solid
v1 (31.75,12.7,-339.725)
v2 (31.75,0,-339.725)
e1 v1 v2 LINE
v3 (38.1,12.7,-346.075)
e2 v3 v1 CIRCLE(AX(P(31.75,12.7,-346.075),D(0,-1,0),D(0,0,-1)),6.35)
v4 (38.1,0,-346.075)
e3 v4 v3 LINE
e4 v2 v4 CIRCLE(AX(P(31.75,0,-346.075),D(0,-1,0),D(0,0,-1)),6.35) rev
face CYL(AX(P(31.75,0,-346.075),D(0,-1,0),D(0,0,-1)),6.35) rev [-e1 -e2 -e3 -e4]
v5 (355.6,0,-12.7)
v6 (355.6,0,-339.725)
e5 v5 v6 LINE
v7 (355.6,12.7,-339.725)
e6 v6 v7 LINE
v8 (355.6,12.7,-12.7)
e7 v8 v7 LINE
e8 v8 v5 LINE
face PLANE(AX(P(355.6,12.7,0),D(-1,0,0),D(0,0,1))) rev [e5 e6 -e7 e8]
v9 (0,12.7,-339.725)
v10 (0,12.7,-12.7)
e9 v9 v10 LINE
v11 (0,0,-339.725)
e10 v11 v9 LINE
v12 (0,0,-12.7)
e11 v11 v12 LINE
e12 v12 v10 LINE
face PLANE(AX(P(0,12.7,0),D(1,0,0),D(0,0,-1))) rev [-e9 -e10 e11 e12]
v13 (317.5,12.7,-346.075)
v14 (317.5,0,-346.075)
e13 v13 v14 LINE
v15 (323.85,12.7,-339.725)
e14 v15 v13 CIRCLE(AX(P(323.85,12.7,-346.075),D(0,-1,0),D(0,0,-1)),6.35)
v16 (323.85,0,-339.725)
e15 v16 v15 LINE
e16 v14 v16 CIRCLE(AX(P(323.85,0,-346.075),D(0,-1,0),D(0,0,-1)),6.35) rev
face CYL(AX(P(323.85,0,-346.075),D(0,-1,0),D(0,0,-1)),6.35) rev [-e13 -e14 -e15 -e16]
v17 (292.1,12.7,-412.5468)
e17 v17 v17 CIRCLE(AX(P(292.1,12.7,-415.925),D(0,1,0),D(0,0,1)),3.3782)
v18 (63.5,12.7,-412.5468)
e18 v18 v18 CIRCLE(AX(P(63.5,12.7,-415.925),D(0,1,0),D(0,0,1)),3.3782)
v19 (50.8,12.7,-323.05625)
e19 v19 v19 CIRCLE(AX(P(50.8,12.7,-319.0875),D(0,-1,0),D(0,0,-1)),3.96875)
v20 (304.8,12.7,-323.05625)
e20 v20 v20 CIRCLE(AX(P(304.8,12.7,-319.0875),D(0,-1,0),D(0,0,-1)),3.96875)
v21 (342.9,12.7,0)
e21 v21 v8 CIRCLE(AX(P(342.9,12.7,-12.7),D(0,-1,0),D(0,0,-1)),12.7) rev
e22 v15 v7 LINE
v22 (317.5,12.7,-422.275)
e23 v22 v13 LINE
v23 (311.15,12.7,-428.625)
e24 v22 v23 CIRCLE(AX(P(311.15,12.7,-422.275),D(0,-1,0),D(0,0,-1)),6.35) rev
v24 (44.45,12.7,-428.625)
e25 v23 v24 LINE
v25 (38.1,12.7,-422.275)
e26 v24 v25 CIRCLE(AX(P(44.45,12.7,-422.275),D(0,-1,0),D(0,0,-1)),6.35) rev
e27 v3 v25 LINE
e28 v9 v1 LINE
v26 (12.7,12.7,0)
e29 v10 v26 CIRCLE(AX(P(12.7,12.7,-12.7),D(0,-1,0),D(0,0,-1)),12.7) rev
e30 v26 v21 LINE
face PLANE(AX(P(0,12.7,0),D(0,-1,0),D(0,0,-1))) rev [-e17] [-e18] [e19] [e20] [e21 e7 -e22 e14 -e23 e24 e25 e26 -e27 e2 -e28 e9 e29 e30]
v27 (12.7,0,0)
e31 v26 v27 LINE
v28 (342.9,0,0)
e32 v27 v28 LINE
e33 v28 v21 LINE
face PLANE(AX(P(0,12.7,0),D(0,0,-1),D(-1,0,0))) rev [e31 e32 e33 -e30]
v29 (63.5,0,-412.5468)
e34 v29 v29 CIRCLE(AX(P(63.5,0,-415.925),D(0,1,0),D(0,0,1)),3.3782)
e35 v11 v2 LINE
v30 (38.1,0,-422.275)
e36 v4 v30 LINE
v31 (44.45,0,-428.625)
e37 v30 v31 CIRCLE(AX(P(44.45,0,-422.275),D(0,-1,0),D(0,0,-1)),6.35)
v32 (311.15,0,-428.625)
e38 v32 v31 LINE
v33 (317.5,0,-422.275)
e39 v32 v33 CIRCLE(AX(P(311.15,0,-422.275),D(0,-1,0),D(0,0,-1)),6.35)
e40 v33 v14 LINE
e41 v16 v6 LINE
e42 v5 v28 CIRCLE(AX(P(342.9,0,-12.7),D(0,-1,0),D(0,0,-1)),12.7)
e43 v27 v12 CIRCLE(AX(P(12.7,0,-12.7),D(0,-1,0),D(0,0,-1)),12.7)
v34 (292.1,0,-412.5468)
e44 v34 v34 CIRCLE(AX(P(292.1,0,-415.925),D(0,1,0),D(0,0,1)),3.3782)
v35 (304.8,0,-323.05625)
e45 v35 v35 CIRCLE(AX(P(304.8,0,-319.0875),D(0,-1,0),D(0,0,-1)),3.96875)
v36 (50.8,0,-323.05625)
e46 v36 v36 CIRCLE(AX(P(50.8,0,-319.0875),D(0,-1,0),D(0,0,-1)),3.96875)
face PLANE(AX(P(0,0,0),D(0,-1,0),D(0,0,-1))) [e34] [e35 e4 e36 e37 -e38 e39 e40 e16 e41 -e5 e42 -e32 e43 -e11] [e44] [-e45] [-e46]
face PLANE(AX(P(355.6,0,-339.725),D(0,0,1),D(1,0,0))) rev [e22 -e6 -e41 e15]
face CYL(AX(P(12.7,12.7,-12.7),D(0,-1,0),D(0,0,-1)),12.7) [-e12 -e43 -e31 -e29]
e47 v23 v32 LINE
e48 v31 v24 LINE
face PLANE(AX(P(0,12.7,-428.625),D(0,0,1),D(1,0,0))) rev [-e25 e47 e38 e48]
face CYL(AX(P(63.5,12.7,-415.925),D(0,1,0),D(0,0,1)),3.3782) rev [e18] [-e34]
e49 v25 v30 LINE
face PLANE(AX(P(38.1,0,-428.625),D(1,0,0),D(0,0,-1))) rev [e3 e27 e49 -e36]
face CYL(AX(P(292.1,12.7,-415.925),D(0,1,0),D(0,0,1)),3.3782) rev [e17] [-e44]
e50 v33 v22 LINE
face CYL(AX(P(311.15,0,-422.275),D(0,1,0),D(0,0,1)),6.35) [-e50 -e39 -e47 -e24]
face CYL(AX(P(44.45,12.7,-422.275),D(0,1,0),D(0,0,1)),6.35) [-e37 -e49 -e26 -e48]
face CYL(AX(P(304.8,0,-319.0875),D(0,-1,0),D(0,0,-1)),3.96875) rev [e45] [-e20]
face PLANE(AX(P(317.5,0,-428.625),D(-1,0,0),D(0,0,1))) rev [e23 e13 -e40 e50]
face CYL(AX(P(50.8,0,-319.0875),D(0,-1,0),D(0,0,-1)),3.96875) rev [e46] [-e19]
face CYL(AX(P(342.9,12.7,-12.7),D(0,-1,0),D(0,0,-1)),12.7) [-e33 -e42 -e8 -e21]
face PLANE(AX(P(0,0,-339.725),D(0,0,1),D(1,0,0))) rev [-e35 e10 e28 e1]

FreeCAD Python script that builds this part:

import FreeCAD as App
import Part
import Sketcher
Q = App.Units.Quantity


def edges_at(feature, points):
    """Names of the edges that pass closest to the given points."""
    edges = feature.Shape.Edges
    near = lambda p: min(range(len(edges)), key=lambda i: edges[i].distToShape(Part.Vertex(*p))[0])
    return sorted({f"Edge{near(p) + 1}" for p in points})

doc = App.newDocument("Part")
body = doc.addObject("PartDesign::Body", "Body")

sketch1 = body.newObject("Sketcher::SketchObject", "Sketch")
sketch1.AttachmentSupport = (doc.getObject("XZ_Plane"), [""])
sketch1.MapMode = "FlatFace"
sketch1.addGeometry([
    Part.LineSegment(App.Vector(0, -429, 0), App.Vector(0, 0, 0)),
    Part.LineSegment(App.Vector(0, 0, 0), App.Vector(356, 0, 0)),
    Part.LineSegment(App.Vector(356, 0, 0), App.Vector(356, -429, 0)),
    Part.LineSegment(App.Vector(356, -429, 0), App.Vector(0, -429, 0)),
], False)
sketch1.addConstraint([
    Sketcher.Constraint("Coincident", 0, 2, 1, 1),
    Sketcher.Constraint("Coincident", 1, 2, 2, 1),
    Sketcher.Constraint("Coincident", 2, 2, 3, 1),
    Sketcher.Constraint("Coincident", 3, 2, 0, 1),
    Sketcher.Constraint("Vertical", 0),
    Sketcher.Constraint("Horizontal", 1),
    Sketcher.Constraint("Vertical", 2),
    Sketcher.Constraint("Horizontal", 3),
    Sketcher.Constraint("Coincident", 0, 2, -1, 1),
    Sketcher.Constraint("DistanceX", 1, 1, 1, 2, Q("14 in")),
    Sketcher.Constraint("DistanceY", 0, 1, 0, 2, Q("16.875 in")),
])
pad1 = body.newObject("PartDesign::Pad", "Pad")
pad1.Profile = sketch1
pad1.Length = Q("0.5 in")
pad1.Reversed = True
doc.recompute()

fillet = body.newObject("PartDesign::Fillet", "Fillet")
fillet.Base = (pad1, edges_at(pad1, [(355.6, 6.35, 0), (0, 6.35, 0)]))
fillet.Radius = Q("0.5 in")

sketch2 = body.newObject("Sketcher::SketchObject", "Sketch001")
sketch2.AttachmentSupport = (doc.getObject("XZ_Plane"), [""])
sketch2.MapMode = "FlatFace"
sketch2.AttachmentOffset = App.Placement(App.Vector(0, 0, -0.5 * 25.4), App.Rotation())
sketch2.addGeometry([
    Part.LineSegment(App.Vector(0, -429, 0), App.Vector(0, -340, 0)),
    Part.LineSegment(App.Vector(0, -340, 0), App.Vector(38, -340, 0)),
    Part.LineSegment(App.Vector(38, -340, 0), App.Vector(38, -429, 0)),
    Part.LineSegment(App.Vector(38, -429, 0), App.Vector(0, -429, 0)),
    Part.LineSegment(App.Vector(318, -429, 0), App.Vector(318, -340, 0)),
    Part.LineSegment(App.Vector(318, -340, 0), App.Vector(356, -340, 0)),
    Part.LineSegment(App.Vector(356, -340, 0), App.Vector(356, -429, 0)),
    Part.LineSegment(App.Vector(356, -429, 0), App.Vector(318, -429, 0)),
], False)
sketch2.addConstraint([
    Sketcher.Constraint("Coincident", 0, 2, 1, 1),
    Sketcher.Constraint("Coincident", 1, 2, 2, 1),
    Sketcher.Constraint("Coincident", 2, 2, 3, 1),
    Sketcher.Constraint("Coincident", 3, 2, 0, 1),
    Sketcher.Constraint("Coincident", 4, 2, 5, 1),
    Sketcher.Constraint("Coincident", 5, 2, 6, 1),
    Sketcher.Constraint("Coincident", 6, 2, 7, 1),
    Sketcher.Constraint("Coincident", 7, 2, 4, 1),
    Sketcher.Constraint("Vertical", 0),
    Sketcher.Constraint("Horizontal", 1),
    Sketcher.Constraint("Vertical", 2),
    Sketcher.Constraint("Horizontal", 3),
    Sketcher.Constraint("Vertical", 4),
    Sketcher.Constraint("Horizontal", 5),
    Sketcher.Constraint("Vertical", 6),
    Sketcher.Constraint("Horizontal", 7),
    Sketcher.Constraint("PointOnObject", 0, 2, -2),
    Sketcher.Constraint("Horizontal", 1, 2, 4, 2),
    Sketcher.Constraint("Horizontal", 3, 2, 6, 2),
    Sketcher.Constraint("Equal", 3, 5),
    Sketcher.Constraint("DistanceX", 1, 1, 1, 2, Q("1.5 in")),
    Sketcher.Constraint("DistanceY", 0, 1, 0, 2, Q("3.5 in")),
    Sketcher.Constraint("DistanceX", -1, 1, 5, 2, Q("14 in")),
    Sketcher.Constraint("DistanceY", 0, 2, -1, 1, Q("13.375 in")),
])
pocket1 = body.newObject("PartDesign::Pocket", "Pocket")
pocket1.Profile = sketch2
pocket1.Type = "ThroughAll"
pocket1.Reversed = True
doc.recompute()

fillet2 = body.newObject("PartDesign::Fillet", "Fillet001")
fillet2.Base = (pocket1, edges_at(pocket1, [
    (38.1, 6.35, -428.625),
    (38.1, 6.35, -339.725),
    (317.5, 6.35, -428.625),
    (317.5, 6.35, -339.725),
]))
fillet2.Radius = Q("0.25 in")

sketch3 = body.newObject("Sketcher::SketchObject", "Sketch002")
sketch3.AttachmentSupport = (doc.getObject("XZ_Plane"), [""])
sketch3.MapMode = "FlatFace"
sketch3.AttachmentOffset = App.Placement(App.Vector(0, 0, -0.5 * 25.4), App.Rotation())
sketch3.addGeometry([
    Part.Circle(App.Vector(63.5, -415.9, 0), App.Vector(0, 0, 1), 3.4),
    Part.Circle(App.Vector(292.1, -415.9, 0), App.Vector(0, 0, 1), 3.4),
], False)
sketch3.addConstraint([
    Sketcher.Constraint("Equal", 0, 1),
    Sketcher.Constraint("Horizontal", 0, 3, 1, 3),
    Sketcher.Constraint("Diameter", 0, Q("0.266 in")),
    Sketcher.Constraint("DistanceX", 0, 3, 1, 3, Q("9 in")),
    Sketcher.Constraint("DistanceX", -1, 1, 0, 3, Q("2.5 in")),
    Sketcher.Constraint("DistanceY", 0, 3, -1, 1, Q("16.375 in")),
])
doc.recompute()
hole = body.newObject("PartDesign::Hole", "Hole")
hole.Profile = sketch3
hole.ThreadType = "None"
hole.Diameter = Q("0.266 in")
hole.DepthType = "ThroughAll"
hole.Reversed = True

sketch4 = body.newObject("Sketcher::SketchObject", "Sketch003")
sketch4.AttachmentSupport = (doc.getObject("XZ_Plane"), [""])
sketch4.MapMode = "FlatFace"
sketch4.addGeometry([
    Part.Circle(App.Vector(50.8, -319.1, 0), App.Vector(0, 0, 1), 4),
    Part.Circle(App.Vector(304.8, -319.1, 0), App.Vector(0, 0, 1), 4),
], False)
sketch4.addConstraint([
    Sketcher.Constraint("Equal", 0, 1),
    Sketcher.Constraint("Horizontal", 0, 3, 1, 3),
    Sketcher.Constraint("Diameter", 0, Q("0.3125 in")),
    Sketcher.Constraint("DistanceX", -1, 1, 0, 3, Q("2 in")),
    Sketcher.Constraint("DistanceX", -1, 1, 1, 3, Q("12 in")),
    Sketcher.Constraint("DistanceY", 0, 3, -1, 1, Q("12.5625 in")),
])
doc.recompute()
hole2 = body.newObject("PartDesign::Hole", "Hole001")
hole2.Profile = sketch4
hole2.ThreadType = "None"
hole2.Diameter = Q("0.3125 in")
hole2.DepthType = "ThroughAll"

doc.recompute()
